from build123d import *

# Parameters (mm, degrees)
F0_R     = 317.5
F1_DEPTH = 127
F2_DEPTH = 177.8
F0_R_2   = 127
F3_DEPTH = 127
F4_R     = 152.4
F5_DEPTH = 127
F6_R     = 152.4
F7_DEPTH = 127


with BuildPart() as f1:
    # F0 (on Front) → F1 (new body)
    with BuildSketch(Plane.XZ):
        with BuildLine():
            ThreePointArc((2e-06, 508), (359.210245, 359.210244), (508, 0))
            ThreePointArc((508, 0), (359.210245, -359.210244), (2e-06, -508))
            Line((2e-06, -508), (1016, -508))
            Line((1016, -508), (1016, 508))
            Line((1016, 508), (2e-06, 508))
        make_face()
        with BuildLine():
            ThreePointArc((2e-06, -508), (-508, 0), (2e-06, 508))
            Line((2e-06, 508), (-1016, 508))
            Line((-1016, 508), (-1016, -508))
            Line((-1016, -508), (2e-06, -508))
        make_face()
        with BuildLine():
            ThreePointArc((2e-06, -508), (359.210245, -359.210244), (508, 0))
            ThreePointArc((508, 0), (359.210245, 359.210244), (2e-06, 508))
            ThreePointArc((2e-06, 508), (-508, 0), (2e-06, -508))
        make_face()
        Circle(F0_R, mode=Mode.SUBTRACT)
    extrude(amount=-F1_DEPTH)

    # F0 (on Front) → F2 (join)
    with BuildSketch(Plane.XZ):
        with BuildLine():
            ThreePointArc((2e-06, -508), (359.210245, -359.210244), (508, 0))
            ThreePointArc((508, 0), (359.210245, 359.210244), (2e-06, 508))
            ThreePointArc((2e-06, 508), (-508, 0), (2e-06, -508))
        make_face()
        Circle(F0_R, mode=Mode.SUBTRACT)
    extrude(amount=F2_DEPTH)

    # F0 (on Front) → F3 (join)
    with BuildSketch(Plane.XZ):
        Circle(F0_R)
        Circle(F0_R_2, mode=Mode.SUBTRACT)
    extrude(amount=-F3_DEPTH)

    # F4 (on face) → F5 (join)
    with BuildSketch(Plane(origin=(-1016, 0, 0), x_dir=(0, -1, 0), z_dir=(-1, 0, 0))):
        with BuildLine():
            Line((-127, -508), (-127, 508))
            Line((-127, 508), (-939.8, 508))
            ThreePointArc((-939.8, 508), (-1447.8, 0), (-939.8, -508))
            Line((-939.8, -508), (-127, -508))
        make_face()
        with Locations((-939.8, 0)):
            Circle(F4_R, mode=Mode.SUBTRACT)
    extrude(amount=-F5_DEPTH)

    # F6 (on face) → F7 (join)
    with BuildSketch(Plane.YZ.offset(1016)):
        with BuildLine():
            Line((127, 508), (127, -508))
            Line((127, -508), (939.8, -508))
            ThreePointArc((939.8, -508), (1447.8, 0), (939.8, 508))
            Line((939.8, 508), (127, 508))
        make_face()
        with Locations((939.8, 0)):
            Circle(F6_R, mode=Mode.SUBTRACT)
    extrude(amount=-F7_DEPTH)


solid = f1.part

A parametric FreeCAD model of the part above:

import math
import FreeCAD as App
import Part
import Sketcher
from FreeCAD import Vector
Q = App.Units.Quantity


def add_polygon(sketch, points):
    """Adds a closed chain of lines whose ends are joined by coincident constraints."""
    first, n = sketch.GeometryCount, len(points)
    for a, b in zip(points, points[1:] + points[:1]):
        sketch.addGeometry(Part.LineSegment(App.Vector(*a, 0), App.Vector(*b, 0)), False)
    for i in range(n):
        sketch.addConstraint(Sketcher.Constraint("Coincident", first + i, 2, first + (i + 1) % n, 1))

doc = App.newDocument("Part")
params = doc.addObject("Spreadsheet::Sheet", "Params")
for row, (alias, value) in enumerate([
    ("sketch1_diameter", "25 in"),
    ("sketch1_width", "80 in"),
    ("sketch1_height", "40 in"),
    ("pad1_length", "5 in"),
    ("sketch2_diameter", "25 in"),
    ("sketch2_radius", "20 in"),
    ("pad2_length", "7 in"),
    ("sketch3_diameter", "25 in"),
    ("sketch3_diameter2", "10 in"),
    ("pad3_length", "5 in"),
    ("sketch4_diameter", "12 in"),
    ("sketch4_radius", "20 in"),
    ("sketch4_width", "32 in"),
    ("pad4_length", "5 in"),
    ("sketch5_diameter", "12 in"),
    ("sketch5_radius", "20 in"),
    ("sketch5_width", "32 in"),
    ("pad5_length", "5 in"),
], start=1):
    params.set(f"A{row}", alias)
    params.set(f"B{row}", "=" + value)
    params.setAlias(f"B{row}", alias)

body = doc.addObject("PartDesign::Body", "Body")

# Sketch on XZ plane
sketch1 = doc.addObject("Sketcher::SketchObject", "Sketch")
body.addObject(sketch1)
sketch1.AttachmentSupport = (doc.XZ_Plane, [""])
sketch1.MapMode = "FlatFace"
add_polygon(sketch1, [(1016, -508), (1016, 508), (-1016, 508), (-1016, -508)])  # lines 0-3
sketch1.addGeometry(Part.Circle(Vector(0, 0, 0), Vector(0, 0, 1), 318), False)  # 4
sketch1.addConstraint(Sketcher.Constraint("Vertical", 0))
sketch1.addConstraint(Sketcher.Constraint("Horizontal", 1))
sketch1.addConstraint(Sketcher.Constraint("Vertical", 2))
sketch1.addConstraint(Sketcher.Constraint("Horizontal", 3))
sketch1.addConstraint(Sketcher.Constraint("Coincident", 4, 3, -1, 1))
sketch1.addConstraint(Sketcher.Constraint("Symmetric", 0, 2, 2, 2, -1, 1))
sketch1.addConstraint(Sketcher.Constraint("Diameter", 4, Q("25 in")))
sketch1.addConstraint(Sketcher.Constraint("DistanceX", 1, 2, 1, 1, Q("80 in")))
sketch1.addConstraint(Sketcher.Constraint("DistanceY", 0, 1, 0, 2, Q("40 in")))
sketch1.setExpression("Constraints[10]", "Params.sketch1_diameter")
sketch1.setExpression("Constraints[11]", "Params.sketch1_width")
sketch1.setExpression("Constraints[12]", "Params.sketch1_height")
pad1 = doc.addObject("PartDesign::Pad", "Pad")
body.addObject(pad1)
pad1.Profile = sketch1
pad1.setExpression("Length", "Params.pad1_length")
pad1.Reversed = True

# Sketch on XZ plane
sketch2 = doc.addObject("Sketcher::SketchObject", "Sketch001")
body.addObject(sketch2)
sketch2.AttachmentSupport = (doc.XZ_Plane, [""])
sketch2.MapMode = "FlatFace"
sketch2.addGeometry(Part.ArcOfCircle(Part.Circle(Vector(0, 0, 0), Vector(0, 0, 1), 508), math.radians(-90), math.radians(0)), False)
sketch2.addGeometry(Part.ArcOfCircle(Part.Circle(Vector(0, 0, 0), Vector(0, 0, 1), 508), math.radians(0), math.radians(90)), False)
sketch2.addGeometry(Part.ArcOfCircle(Part.Circle(Vector(0, 0, 0), Vector(0, 0, 1), 508), math.radians(90), math.radians(270)), False)
sketch2.addGeometry(Part.Circle(Vector(0, 0, 0), Vector(0, 0, 1), 318), False)
sketch2.addConstraint(Sketcher.Constraint("Coincident", 0, 2, 1, 1))
sketch2.addConstraint(Sketcher.Constraint("Coincident", 1, 2, 2, 1))
sketch2.addConstraint(Sketcher.Constraint("Coincident", 2, 2, 0, 1))
sketch2.addConstraint(Sketcher.Constraint("Coincident", 0, 3, -1, 1))
sketch2.addConstraint(Sketcher.Constraint("Coincident", 1, 3, -1, 1))
sketch2.addConstraint(Sketcher.Constraint("Coincident", 3, 3, -1, 1))
sketch2.addConstraint(Sketcher.Constraint("PointOnObject", 0, 2, -1))
sketch2.addConstraint(Sketcher.Constraint("Vertical", 1, 2, 2, 2))
sketch2.addConstraint(Sketcher.Constraint("Diameter", 3, Q("25 in")))
sketch2.addConstraint(Sketcher.Constraint("Radius", 0, Q("20 in")))
sketch2.addConstraint(Sketcher.Constraint("DistanceX", 2, 3, 0, 2, Q("20 in")))
sketch2.addConstraint(Sketcher.Constraint("DistanceX", 1, 2, 0, 2, Q("19.9999999 in")))
sketch2.setExpression("Constraints[8]", "Params.sketch2_diameter")
sketch2.setExpression("Constraints[9]", "Params.sketch2_radius")
pad2 = doc.addObject("PartDesign::Pad", "Pad001")
body.addObject(pad2)
pad2.Profile = sketch2
pad2.setExpression("Length", "Params.pad2_length")

# Sketch on XZ plane
sketch3 = doc.addObject("Sketcher::SketchObject", "Sketch002")
body.addObject(sketch3)
sketch3.AttachmentSupport = (doc.XZ_Plane, [""])
sketch3.MapMode = "FlatFace"
sketch3.addGeometry(Part.Circle(Vector(0, 0, 0), Vector(0, 0, 1), 318), False)
sketch3.addGeometry(Part.Circle(Vector(0, 0, 0), Vector(0, 0, 1), 127), False)
sketch3.addConstraint(Sketcher.Constraint("Coincident", 0, 3, -1, 1))
sketch3.addConstraint(Sketcher.Constraint("Coincident", 1, 3, -1, 1))
sketch3.addConstraint(Sketcher.Constraint("Diameter", 0, Q("25 in")))
sketch3.addConstraint(Sketcher.Constraint("Diameter", 1, Q("10 in")))
sketch3.setExpression("Constraints[2]", "Params.sketch3_diameter")
sketch3.setExpression("Constraints[3]", "Params.sketch3_diameter2")
pad3 = doc.addObject("PartDesign::Pad", "Pad002")
body.addObject(pad3)
pad3.Profile = sketch3
pad3.setExpression("Length", "Params.pad3_length")
pad3.Reversed = True

# Sketch on YZ plane
sketch4 = doc.addObject("Sketcher::SketchObject", "Sketch003")
body.addObject(sketch4)
sketch4.AttachmentSupport = (doc.YZ_Plane, [""])
sketch4.MapMode = "FlatFace"
sketch4.AttachmentOffset = App.Placement(Vector(0, 0, -40 * 25.4), App.Rotation())
sketch4.addGeometry(Part.LineSegment(Vector(127, -508, 0), Vector(127, 508, 0)), False)
sketch4.addGeometry(Part.LineSegment(Vector(127, 508, 0), Vector(940, 508, 0)), False)
sketch4.addGeometry(Part.ArcOfCircle(Part.Circle(Vector(940, 0, 0), Vector(0, 0, 1), 508), math.radians(-90), math.radians(90)), False)
sketch4.addGeometry(Part.LineSegment(Vector(940, -508, 0), Vector(127, -508, 0)), False)
sketch4.addGeometry(Part.Circle(Vector(940, 0, 0), Vector(0, 0, 1), 152), False)
sketch4.addConstraint(Sketcher.Constraint("Coincident", 0, 2, 1, 1))
sketch4.addConstraint(Sketcher.Constraint("Tangent", 1, 2, 2, 2))
sketch4.addConstraint(Sketcher.Constraint("Tangent", 2, 1, 3, 1))
sketch4.addConstraint(Sketcher.Constraint("Coincident", 3, 2, 0, 1))
sketch4.addConstraint(Sketcher.Constraint("Vertical", 0))
sketch4.addConstraint(Sketcher.Constraint("Horizontal", 1))
sketch4.addConstraint(Sketcher.Constraint("Horizontal", 3))
sketch4.addConstraint(Sketcher.Constraint("Coincident", 4, 3, 2, 3))
sketch4.addConstraint(Sketcher.Constraint("PointOnObject", 2, 3, -1))
sketch4.addConstraint(Sketcher.Constraint("Diameter", 4, Q("12 in")))
sketch4.addConstraint(Sketcher.Constraint("Radius", 2, Q("20 in")))
sketch4.addConstraint(Sketcher.Constraint("DistanceX", 1, 1, 1, 2, Q("32 in")))
sketch4.addConstraint(Sketcher.Constraint("DistanceX", -1, 1, 2, 3, Q("37 in")))
sketch4.setExpression("Constraints[9]", "Params.sketch4_diameter")
sketch4.setExpression("Constraints[10]", "Params.sketch4_radius")
sketch4.setExpression("Constraints[11]", "Params.sketch4_width")
pad4 = doc.addObject("PartDesign::Pad", "Pad003")
body.addObject(pad4)
pad4.Profile = sketch4
pad4.setExpression("Length", "Params.pad4_length")

# Sketch on YZ plane
sketch5 = doc.addObject("Sketcher::SketchObject", "Sketch004")
body.addObject(sketch5)
sketch5.AttachmentSupport = (doc.YZ_Plane, [""])
sketch5.MapMode = "FlatFace"
sketch5.AttachmentOffset = App.Placement(Vector(0, 0, 40 * 25.4), App.Rotation())
sketch5.addGeometry(Part.LineSegment(Vector(127, 508, 0), Vector(127, -508, 0)), False)
sketch5.addGeometry(Part.LineSegment(Vector(127, -508, 0), Vector(940, -508, 0)), False)
sketch5.addGeometry(Part.ArcOfCircle(Part.Circle(Vector(940, 0, 0), Vector(0, 0, 1), 508), math.radians(-90), math.radians(90)), False)
sketch5.addGeometry(Part.LineSegment(Vector(940, 508, 0), Vector(127, 508, 0)), False)
sketch5.addGeometry(Part.Circle(Vector(940, 0, 0), Vector(0, 0, 1), 152), False)
sketch5.addConstraint(Sketcher.Constraint("Coincident", 0, 2, 1, 1))
sketch5.addConstraint(Sketcher.Constraint("Tangent", 1, 2, 2, 1))
sketch5.addConstraint(Sketcher.Constraint("Tangent", 2, 2, 3, 1))
sketch5.addConstraint(Sketcher.Constraint("Coincident", 3, 2, 0, 1))
sketch5.addConstraint(Sketcher.Constraint("Vertical", 0))
sketch5.addConstraint(Sketcher.Constraint("Horizontal", 1))
sketch5.addConstraint(Sketcher.Constraint("Horizontal", 3))
sketch5.addConstraint(Sketcher.Constraint("Coincident", 4, 3, 2, 3))
sketch5.addConstraint(Sketcher.Constraint("PointOnObject", 2, 3, -1))
sketch5.addConstraint(Sketcher.Constraint("Diameter", 4, Q("12 in")))
sketch5.addConstraint(Sketcher.Constraint("Radius", 2, Q("20 in")))
sketch5.addConstraint(Sketcher.Constraint("DistanceX", 1, 1, 1, 2, Q("32 in")))
sketch5.addConstraint(Sketcher.Constraint("DistanceX", -1, 1, 2, 3, Q("37 in")))
sketch5.setExpression("Constraints[9]", "Params.sketch5_diameter")
sketch5.setExpression("Constraints[10]", "Params.sketch5_radius")
sketch5.setExpression("Constraints[11]", "Params.sketch5_width")
pad5 = doc.addObject("PartDesign::Pad", "Pad004")
body.addObject(pad5)
pad5.Profile = sketch5
pad5.setExpression("Length", "Params.pad5_length")
pad5.Reversed = True

doc.recompute()
